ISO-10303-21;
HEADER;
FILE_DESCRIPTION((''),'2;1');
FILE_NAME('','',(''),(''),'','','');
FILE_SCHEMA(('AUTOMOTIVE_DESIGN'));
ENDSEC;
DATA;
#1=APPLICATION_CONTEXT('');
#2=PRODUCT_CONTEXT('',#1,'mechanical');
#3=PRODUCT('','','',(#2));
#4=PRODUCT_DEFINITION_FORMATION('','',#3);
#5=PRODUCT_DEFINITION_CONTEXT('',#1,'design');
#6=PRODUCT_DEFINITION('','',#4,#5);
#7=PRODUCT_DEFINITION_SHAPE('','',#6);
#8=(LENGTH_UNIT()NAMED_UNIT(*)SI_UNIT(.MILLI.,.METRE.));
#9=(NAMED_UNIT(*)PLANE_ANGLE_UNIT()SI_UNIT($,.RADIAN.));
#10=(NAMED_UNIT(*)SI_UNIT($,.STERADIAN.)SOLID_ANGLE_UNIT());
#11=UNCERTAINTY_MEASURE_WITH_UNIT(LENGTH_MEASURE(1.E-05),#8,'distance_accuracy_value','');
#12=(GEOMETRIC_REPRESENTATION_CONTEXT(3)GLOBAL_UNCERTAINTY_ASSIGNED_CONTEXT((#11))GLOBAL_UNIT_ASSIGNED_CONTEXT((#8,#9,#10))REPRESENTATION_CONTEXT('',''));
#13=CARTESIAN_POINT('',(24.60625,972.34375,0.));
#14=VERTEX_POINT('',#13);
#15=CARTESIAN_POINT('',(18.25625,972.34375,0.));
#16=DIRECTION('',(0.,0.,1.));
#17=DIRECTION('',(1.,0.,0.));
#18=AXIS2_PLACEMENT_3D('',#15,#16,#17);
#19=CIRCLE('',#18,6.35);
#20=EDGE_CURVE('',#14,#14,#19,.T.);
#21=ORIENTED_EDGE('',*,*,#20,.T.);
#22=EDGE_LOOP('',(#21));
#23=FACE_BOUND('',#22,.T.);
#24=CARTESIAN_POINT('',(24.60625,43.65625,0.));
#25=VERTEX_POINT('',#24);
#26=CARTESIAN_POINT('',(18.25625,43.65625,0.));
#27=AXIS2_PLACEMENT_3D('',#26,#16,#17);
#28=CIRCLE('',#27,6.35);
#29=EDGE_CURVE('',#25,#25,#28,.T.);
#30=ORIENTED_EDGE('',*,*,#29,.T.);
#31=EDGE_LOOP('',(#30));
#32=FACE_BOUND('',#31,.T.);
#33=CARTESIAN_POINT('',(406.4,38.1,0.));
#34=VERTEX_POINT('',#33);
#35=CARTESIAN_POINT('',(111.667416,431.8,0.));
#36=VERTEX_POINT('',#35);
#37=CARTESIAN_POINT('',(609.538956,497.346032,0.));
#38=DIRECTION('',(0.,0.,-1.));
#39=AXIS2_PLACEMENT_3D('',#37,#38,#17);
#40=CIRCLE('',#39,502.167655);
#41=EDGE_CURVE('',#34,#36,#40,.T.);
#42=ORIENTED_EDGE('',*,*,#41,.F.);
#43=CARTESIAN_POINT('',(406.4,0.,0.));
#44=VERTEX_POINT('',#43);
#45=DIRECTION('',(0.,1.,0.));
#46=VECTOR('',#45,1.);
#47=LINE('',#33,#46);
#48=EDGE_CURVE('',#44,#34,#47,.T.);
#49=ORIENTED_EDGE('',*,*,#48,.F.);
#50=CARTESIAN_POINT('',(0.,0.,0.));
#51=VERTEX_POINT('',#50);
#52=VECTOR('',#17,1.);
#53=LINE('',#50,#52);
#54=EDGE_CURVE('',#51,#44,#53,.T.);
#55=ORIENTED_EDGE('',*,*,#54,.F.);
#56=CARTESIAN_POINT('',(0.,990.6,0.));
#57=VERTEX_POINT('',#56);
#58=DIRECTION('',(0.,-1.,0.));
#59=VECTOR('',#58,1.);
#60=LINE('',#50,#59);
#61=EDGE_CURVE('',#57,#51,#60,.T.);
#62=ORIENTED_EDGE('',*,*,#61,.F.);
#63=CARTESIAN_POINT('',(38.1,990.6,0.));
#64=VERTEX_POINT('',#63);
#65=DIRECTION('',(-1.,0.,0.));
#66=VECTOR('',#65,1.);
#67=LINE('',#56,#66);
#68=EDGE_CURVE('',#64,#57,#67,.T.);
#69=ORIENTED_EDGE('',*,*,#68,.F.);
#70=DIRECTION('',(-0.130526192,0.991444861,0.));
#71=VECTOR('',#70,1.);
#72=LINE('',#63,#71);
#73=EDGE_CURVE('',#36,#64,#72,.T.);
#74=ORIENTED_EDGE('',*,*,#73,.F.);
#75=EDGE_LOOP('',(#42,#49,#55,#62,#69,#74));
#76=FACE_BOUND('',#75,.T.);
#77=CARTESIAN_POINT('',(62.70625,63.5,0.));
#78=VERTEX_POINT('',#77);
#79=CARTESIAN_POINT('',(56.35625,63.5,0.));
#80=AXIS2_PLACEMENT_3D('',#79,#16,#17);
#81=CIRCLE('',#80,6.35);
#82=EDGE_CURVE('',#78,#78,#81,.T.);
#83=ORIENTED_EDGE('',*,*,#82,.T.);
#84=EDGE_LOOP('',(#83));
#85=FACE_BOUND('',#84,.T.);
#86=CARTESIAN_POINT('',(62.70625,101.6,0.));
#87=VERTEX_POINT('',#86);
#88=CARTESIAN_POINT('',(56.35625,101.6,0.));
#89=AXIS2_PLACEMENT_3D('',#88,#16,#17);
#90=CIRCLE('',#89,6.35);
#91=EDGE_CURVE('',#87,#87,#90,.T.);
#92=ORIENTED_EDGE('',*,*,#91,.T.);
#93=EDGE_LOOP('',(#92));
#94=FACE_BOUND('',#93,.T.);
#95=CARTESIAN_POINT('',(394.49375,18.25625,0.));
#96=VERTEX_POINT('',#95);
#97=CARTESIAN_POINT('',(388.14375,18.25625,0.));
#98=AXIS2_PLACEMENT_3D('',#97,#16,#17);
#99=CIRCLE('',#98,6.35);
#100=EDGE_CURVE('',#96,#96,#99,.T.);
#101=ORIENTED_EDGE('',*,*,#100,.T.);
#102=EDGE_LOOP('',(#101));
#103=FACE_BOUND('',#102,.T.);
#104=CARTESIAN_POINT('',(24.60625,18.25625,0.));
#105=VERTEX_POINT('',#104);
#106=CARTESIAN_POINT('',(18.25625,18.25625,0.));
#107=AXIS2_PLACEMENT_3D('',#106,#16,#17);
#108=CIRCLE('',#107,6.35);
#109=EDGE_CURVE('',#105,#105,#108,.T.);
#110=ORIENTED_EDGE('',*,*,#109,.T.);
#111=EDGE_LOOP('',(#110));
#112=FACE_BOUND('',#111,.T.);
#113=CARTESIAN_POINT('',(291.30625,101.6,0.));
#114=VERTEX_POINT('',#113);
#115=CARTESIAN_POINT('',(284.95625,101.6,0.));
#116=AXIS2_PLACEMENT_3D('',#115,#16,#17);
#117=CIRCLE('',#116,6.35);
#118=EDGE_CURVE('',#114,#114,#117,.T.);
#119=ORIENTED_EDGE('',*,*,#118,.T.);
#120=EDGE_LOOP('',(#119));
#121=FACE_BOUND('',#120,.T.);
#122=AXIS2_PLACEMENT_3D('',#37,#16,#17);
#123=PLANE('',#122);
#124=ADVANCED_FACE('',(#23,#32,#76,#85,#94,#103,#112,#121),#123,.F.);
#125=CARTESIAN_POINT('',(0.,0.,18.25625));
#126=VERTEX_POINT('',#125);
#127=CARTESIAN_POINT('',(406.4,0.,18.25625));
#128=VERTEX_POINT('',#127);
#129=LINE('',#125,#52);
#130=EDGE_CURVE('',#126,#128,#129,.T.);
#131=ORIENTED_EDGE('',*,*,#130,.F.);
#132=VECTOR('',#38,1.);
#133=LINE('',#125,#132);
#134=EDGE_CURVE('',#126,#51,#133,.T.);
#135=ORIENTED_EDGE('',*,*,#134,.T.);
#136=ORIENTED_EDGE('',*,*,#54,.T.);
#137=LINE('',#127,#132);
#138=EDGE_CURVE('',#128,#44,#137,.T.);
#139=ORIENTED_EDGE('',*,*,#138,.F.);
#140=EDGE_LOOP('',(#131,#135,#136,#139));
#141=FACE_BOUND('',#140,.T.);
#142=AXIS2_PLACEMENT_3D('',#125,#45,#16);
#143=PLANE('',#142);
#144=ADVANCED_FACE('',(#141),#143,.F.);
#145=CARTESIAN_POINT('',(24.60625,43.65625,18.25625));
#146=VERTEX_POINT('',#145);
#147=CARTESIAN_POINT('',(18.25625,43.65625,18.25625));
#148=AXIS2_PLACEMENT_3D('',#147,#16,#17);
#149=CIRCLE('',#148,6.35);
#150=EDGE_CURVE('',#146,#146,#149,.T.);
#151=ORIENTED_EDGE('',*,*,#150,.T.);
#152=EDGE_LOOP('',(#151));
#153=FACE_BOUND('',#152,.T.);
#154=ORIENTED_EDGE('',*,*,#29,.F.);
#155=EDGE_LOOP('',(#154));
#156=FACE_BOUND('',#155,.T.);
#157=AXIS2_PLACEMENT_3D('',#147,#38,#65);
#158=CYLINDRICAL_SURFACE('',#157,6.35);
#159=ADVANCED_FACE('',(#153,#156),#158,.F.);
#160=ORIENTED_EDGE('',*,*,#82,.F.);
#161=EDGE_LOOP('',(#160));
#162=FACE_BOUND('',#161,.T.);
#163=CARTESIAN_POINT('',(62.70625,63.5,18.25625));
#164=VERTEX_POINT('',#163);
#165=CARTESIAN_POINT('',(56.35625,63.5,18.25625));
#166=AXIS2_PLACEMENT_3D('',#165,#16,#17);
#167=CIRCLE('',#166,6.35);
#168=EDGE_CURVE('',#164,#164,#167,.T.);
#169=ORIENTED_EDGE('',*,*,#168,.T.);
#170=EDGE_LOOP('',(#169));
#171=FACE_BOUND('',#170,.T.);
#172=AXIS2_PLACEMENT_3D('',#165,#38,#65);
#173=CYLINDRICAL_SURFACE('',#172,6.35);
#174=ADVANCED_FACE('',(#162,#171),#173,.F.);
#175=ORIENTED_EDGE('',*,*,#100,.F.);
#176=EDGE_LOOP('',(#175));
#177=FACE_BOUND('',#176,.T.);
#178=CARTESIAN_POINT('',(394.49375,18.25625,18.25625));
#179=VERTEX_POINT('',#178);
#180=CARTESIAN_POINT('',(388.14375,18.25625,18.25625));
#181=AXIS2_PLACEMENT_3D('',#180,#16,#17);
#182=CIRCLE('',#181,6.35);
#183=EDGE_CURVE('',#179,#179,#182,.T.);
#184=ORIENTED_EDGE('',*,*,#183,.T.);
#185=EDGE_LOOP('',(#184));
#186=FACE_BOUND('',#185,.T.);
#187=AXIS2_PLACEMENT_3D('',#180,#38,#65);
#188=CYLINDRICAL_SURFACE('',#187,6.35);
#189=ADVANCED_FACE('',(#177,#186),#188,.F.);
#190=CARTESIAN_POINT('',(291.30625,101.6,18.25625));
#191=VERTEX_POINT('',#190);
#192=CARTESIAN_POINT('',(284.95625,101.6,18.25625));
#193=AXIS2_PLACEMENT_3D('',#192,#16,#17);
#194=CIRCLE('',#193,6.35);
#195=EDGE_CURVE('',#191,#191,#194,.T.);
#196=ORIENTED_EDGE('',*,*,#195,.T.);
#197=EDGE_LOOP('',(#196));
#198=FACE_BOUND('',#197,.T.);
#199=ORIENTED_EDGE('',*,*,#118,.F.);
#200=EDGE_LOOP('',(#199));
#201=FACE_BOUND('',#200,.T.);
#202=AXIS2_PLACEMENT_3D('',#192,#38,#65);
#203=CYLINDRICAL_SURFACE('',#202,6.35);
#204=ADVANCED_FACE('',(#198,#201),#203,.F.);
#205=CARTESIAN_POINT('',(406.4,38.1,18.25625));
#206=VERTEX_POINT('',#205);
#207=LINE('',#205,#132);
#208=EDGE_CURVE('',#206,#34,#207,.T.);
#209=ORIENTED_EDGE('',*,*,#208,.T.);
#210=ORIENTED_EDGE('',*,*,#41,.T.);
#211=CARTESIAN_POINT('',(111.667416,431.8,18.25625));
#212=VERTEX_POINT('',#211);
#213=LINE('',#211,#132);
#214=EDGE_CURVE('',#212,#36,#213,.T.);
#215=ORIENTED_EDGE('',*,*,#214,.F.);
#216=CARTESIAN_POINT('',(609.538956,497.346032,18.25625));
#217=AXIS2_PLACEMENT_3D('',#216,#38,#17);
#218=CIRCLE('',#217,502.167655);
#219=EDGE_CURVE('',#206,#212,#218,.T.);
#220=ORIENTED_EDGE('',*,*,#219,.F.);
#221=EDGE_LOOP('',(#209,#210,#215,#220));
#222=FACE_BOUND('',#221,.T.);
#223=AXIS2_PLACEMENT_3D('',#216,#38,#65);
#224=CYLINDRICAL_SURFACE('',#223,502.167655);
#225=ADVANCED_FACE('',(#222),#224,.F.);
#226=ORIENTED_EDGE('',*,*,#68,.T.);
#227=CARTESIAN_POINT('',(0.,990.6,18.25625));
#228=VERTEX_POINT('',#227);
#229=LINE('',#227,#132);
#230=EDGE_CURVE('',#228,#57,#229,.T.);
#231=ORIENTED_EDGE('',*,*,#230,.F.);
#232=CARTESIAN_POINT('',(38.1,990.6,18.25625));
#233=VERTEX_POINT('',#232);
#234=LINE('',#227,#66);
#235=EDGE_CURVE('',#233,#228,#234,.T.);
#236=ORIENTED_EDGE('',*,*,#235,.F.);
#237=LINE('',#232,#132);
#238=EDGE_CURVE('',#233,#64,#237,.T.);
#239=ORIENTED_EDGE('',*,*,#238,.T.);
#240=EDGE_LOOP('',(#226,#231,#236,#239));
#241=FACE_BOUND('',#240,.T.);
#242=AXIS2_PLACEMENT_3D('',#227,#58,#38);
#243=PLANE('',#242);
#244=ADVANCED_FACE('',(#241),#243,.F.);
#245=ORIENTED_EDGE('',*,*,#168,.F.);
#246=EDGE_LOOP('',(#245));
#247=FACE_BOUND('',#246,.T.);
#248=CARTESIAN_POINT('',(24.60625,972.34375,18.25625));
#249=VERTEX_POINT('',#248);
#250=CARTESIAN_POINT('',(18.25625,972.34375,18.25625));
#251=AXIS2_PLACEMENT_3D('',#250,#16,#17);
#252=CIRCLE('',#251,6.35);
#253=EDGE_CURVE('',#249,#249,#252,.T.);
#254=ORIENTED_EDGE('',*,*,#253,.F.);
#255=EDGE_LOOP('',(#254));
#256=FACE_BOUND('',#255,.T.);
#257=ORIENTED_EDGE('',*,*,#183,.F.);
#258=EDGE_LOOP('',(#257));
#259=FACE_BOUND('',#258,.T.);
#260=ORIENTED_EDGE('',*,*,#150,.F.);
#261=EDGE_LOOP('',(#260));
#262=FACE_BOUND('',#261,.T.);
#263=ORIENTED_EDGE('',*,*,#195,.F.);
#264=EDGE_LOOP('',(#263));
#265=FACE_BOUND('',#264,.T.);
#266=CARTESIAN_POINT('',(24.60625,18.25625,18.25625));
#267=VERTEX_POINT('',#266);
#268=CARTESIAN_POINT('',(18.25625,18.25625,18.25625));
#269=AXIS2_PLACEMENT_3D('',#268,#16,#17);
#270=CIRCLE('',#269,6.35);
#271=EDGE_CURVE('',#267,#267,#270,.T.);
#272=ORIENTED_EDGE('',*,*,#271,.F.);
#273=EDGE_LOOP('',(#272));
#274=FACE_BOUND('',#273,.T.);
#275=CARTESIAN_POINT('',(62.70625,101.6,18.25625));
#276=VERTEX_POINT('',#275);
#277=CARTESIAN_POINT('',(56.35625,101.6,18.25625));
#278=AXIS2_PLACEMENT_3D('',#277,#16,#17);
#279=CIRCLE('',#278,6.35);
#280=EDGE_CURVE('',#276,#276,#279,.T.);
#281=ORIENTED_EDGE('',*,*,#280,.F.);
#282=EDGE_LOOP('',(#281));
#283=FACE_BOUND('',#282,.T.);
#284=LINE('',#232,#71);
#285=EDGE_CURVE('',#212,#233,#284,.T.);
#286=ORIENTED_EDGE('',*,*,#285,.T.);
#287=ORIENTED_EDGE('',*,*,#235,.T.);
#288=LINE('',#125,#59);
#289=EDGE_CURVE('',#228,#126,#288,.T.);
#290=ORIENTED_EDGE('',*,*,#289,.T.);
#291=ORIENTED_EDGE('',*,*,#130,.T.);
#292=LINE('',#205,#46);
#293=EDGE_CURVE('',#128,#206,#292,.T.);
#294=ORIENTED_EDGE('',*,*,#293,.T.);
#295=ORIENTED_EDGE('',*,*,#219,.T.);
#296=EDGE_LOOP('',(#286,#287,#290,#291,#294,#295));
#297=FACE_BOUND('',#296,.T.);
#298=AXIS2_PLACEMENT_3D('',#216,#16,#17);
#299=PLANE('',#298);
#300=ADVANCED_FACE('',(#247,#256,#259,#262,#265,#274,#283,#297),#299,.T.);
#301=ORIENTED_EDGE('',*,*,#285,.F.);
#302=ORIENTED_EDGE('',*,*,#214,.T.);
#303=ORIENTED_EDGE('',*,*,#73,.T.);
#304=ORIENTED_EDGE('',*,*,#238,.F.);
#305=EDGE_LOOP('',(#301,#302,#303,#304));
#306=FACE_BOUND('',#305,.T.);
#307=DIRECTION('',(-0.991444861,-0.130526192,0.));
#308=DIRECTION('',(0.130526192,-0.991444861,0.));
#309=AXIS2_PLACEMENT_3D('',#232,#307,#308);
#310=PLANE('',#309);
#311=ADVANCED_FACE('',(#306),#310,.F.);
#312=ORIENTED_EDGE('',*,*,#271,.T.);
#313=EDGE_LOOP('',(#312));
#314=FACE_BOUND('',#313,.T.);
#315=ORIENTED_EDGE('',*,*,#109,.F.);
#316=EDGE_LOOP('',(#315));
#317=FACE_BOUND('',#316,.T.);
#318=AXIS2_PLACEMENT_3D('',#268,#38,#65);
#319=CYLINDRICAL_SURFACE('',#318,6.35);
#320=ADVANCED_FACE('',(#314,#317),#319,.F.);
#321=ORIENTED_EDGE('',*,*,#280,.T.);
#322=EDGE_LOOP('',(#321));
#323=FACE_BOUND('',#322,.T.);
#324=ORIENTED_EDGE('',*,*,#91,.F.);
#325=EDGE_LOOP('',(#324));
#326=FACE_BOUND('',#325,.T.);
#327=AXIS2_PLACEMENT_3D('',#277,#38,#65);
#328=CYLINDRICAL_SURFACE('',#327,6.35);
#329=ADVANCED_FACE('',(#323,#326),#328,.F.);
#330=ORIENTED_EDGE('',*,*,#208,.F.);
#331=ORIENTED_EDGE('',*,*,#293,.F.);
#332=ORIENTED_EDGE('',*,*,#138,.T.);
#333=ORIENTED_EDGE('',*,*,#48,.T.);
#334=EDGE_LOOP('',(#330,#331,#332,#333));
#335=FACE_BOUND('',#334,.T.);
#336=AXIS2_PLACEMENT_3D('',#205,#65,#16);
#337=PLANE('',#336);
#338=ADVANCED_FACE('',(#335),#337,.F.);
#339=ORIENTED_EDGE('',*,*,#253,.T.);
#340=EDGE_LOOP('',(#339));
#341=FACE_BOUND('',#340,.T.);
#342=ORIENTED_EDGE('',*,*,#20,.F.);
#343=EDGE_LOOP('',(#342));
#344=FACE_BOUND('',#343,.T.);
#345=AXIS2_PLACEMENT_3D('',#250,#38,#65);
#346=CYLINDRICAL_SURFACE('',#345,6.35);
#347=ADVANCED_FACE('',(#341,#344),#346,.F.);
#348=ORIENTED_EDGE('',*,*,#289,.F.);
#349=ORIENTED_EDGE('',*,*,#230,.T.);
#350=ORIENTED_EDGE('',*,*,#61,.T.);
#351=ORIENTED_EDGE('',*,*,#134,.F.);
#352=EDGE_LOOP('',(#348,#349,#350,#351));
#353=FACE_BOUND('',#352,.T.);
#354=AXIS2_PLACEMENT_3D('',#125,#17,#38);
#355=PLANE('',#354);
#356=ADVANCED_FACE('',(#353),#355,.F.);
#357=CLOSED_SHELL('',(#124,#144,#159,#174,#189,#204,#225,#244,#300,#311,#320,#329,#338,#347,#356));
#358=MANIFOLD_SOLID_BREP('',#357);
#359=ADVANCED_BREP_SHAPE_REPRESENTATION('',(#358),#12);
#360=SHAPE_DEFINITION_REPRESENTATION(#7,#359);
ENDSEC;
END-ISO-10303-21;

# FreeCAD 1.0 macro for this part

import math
import FreeCAD as App
import Part
import Sketcher

V = App.Vector
Q = App.Units.Quantity

doc = App.newDocument("Part")
body = doc.addObject("PartDesign::Body", "Body")

# Sketch on XY plane
sketch1 = body.newObject("Sketcher::SketchObject", "Sketch")
sketch1.AttachmentSupport = (doc.getObject("XY_Plane"), [""])
sketch1.MapMode = "FlatFace"
sketch1.addGeometry([
    Part.LineSegment(V(0, 0, 0), V(406, 0, 0)),  # 0
    Part.LineSegment(V(406, 0, 0), V(406, 38, 0)),  # 1
    Part.ArcOfCircle(Part.Circle(V(610, 497, 0), V(0, 0, 1), 502), math.radians(-172), math.radians(-114)),  # 2
    Part.LineSegment(V(112, 432, 0), V(38, 991, 0)),  # 3
    Part.LineSegment(V(38, 991, 0), V(0, 991, 0)),  # 4
    Part.LineSegment(V(0, 991, 0), V(0, 0, 0)),  # 5
    Part.Circle(V(18, 18, 0), V(0, 0, 1), 6),  # 6
    Part.Circle(V(18, 44, 0), V(0, 0, 1), 6),  # 7
    Part.Circle(V(56, 64, 0), V(0, 0, 1), 6),  # 8
    Part.Circle(V(56, 102, 0), V(0, 0, 1), 6),  # 9
    Part.Circle(V(285, 102, 0), V(0, 0, 1), 6),  # 10
    Part.Circle(V(388, 18, 0), V(0, 0, 1), 6),  # 11
    Part.Circle(V(18, 972, 0), V(0, 0, 1), 6),  # 12
], False)
sketch1.addConstraint([
    Sketcher.Constraint("Coincident", 0, 2, 1, 1),
    Sketcher.Constraint("Coincident", 1, 2, 2, 2),
    Sketcher.Constraint("Tangent", 2, 1, 3, 1),
    Sketcher.Constraint("Coincident", 3, 2, 4, 1),
    Sketcher.Constraint("Coincident", 4, 2, 5, 1),
    Sketcher.Constraint("Coincident", 5, 2, 0, 1),
    Sketcher.Constraint("Horizontal", 0),
    Sketcher.Constraint("Vertical", 1),
    Sketcher.Constraint("Horizontal", 4),
    Sketcher.Constraint("Vertical", 5),
    Sketcher.Constraint("Coincident", 5, 2, -1, 1),
    Sketcher.Constraint("Equal", 6, 7),
    Sketcher.Constraint("Equal", 7, 8),
    Sketcher.Constraint("Equal", 8, 9),
    Sketcher.Constraint("Equal", 9, 10),
    Sketcher.Constraint("Equal", 10, 11),
    Sketcher.Constraint("Equal", 11, 12),
    Sketcher.Constraint("Horizontal", 9, 3, 10, 3),
    Sketcher.Constraint("Horizontal", 6, 3, 11, 3),
    Sketcher.Constraint("Vertical", 6, 3, 7, 3),
    Sketcher.Constraint("Vertical", 8, 3, 9, 3),
    Sketcher.Constraint("Vertical", 7, 3, 12, 3),
    Sketcher.Constraint("Equal", 4, 1),
    Sketcher.Constraint("Diameter", 6, Q("0.5 in")),
    Sketcher.Constraint("DistanceX", 0, 1, 0, 2, Q("16 in")),
    Sketcher.Constraint("DistanceY", 5, 2, 5, 1, Q("39 in")),
    Sketcher.Constraint("DistanceX", 4, 2, 4, 1, Q("1.5 in")),
    Sketcher.Constraint("DistanceY", -1, 1, 9, 3, Q("4 in")),
    Sketcher.Constraint("DistanceY", 6, 3, 7, 3, Q("1 in")),
    Sketcher.Constraint("DistanceX", 9, 3, 10, 3, Q("9 in")),
    Sketcher.Constraint("DistanceY", 1, 2, 8, 3, Q("1 in")),
    Sketcher.Constraint("Angle", 3, Q("97.5 deg")),
    Sketcher.Constraint("DistanceX", 7, 3, 8, 3, Q("1.5 in")),
    Sketcher.Constraint("DistanceX", -1, 1, 6, 3, Q("0.71875 in")),
    Sketcher.Constraint("DistanceY", -1, 1, 6, 3, Q("0.71875 in")),
    Sketcher.Constraint("DistanceX", -1, 1, 11, 3, Q("15.28125 in")),
    Sketcher.Constraint("DistanceY", -1, 1, 12, 3, Q("38.28125 in")),
    Sketcher.Constraint("Radius", 2, Q("502.167655 mm")),
])
pad1 = body.newObject("PartDesign::Pad", "Pad")
pad1.Profile = sketch1
pad1.Length = Q("0.71875 in")

doc.recompute()
